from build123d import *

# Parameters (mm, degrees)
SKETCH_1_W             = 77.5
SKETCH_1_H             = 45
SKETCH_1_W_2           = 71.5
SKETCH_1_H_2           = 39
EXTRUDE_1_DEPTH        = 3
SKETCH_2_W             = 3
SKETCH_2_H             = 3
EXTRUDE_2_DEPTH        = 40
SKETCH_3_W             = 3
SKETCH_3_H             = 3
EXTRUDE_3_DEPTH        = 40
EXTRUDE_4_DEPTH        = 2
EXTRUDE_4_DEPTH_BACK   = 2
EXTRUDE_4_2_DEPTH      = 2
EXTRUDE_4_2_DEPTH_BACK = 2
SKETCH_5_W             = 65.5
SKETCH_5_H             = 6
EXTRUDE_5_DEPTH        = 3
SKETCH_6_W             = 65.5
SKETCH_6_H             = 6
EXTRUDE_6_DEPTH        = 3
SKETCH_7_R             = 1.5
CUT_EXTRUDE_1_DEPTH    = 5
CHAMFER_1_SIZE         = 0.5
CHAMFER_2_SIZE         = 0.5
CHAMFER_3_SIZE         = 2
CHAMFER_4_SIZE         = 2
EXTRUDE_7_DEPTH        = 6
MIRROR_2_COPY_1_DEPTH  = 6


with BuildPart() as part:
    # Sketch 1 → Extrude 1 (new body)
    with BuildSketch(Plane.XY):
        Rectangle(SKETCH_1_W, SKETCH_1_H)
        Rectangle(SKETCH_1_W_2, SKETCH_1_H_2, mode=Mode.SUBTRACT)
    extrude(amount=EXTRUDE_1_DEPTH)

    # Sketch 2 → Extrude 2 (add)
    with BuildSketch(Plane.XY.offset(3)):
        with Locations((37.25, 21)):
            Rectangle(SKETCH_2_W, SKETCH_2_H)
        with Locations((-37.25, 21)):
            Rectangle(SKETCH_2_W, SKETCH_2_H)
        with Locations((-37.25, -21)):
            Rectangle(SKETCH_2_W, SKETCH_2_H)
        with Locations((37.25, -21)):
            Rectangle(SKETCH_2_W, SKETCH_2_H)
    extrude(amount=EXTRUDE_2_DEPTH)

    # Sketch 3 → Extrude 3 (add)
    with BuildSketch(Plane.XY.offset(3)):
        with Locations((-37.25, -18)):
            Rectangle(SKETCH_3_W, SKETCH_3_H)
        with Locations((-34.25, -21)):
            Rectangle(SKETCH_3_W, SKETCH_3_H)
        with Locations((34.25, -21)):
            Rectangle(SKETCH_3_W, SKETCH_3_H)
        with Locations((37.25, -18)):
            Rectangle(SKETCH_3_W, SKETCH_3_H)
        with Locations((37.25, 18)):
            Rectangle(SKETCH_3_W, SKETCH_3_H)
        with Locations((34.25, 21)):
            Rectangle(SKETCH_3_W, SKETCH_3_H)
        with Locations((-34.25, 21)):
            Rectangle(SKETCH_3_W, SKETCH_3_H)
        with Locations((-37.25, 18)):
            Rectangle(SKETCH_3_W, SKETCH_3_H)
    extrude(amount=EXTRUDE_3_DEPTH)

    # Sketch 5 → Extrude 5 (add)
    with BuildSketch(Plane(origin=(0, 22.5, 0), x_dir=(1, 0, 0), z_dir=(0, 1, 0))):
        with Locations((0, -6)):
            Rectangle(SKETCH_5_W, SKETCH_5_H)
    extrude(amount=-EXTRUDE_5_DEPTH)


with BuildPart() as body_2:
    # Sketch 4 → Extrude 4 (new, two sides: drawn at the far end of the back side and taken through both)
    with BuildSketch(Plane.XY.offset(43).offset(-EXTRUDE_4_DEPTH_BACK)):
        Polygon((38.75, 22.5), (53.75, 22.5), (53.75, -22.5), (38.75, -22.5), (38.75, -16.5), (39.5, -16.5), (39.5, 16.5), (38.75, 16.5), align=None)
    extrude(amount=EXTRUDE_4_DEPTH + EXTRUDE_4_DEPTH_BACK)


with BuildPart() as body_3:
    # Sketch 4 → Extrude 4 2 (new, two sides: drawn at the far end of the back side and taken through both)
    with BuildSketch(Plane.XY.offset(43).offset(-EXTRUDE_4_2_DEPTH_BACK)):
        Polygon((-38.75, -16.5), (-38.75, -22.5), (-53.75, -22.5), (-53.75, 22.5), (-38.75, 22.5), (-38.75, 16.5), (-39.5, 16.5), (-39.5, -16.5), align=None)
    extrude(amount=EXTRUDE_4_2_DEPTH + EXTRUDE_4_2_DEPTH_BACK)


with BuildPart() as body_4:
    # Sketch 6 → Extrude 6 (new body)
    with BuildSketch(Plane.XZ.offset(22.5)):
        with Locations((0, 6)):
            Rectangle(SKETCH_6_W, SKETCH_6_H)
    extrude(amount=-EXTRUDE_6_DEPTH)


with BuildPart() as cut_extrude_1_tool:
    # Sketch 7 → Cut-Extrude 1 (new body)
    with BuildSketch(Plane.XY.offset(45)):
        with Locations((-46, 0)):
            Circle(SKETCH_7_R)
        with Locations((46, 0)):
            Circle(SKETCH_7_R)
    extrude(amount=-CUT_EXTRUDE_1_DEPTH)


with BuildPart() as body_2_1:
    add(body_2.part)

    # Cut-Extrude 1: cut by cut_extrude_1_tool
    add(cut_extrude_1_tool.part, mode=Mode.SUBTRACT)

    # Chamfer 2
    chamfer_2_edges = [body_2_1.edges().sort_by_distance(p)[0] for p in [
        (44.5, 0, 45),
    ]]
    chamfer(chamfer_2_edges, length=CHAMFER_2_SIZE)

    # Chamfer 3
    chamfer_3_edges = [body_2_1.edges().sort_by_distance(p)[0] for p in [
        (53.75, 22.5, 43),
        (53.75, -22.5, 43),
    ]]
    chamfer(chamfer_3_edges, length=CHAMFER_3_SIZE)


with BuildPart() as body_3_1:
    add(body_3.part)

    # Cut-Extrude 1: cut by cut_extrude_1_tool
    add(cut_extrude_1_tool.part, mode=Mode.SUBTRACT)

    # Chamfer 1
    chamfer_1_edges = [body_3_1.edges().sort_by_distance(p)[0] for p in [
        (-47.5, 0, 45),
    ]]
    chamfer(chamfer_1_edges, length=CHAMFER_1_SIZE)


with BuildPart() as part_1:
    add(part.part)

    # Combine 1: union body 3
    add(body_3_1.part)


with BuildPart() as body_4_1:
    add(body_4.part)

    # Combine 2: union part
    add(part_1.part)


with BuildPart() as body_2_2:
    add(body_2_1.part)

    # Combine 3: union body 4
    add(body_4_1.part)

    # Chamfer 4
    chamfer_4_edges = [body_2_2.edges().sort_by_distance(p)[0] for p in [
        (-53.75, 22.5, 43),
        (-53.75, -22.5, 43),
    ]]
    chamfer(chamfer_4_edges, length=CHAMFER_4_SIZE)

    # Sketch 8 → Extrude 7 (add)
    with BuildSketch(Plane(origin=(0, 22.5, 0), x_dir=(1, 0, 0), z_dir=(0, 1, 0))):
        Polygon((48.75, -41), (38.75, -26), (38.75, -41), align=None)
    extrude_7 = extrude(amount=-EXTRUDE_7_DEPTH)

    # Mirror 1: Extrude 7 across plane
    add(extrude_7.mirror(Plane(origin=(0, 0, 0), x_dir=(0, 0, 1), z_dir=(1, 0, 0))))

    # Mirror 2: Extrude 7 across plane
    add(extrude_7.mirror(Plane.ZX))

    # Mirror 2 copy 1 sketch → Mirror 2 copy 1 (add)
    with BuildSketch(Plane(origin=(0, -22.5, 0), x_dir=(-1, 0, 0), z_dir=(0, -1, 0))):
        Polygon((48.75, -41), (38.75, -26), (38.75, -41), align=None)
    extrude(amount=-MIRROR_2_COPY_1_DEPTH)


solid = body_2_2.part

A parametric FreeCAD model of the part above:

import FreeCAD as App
import Part
import Sketcher
from FreeCAD import Vector
Q = App.Units.Quantity


def edges_at(feature, points):
    """Names of the edges that pass closest to the given points."""
    edges = feature.Shape.Edges
    near = lambda p: min(range(len(edges)), key=lambda i: edges[i].distToShape(Part.Vertex(*p))[0])
    return sorted({f"Edge{near(p) + 1}" for p in points})


def add_polygon(sketch, points):
    """Adds a closed chain of lines whose ends are joined by coincident constraints."""
    first, n = sketch.GeometryCount, len(points)
    for a, b in zip(points, points[1:] + points[:1]):
        sketch.addGeometry(Part.LineSegment(App.Vector(*a, 0), App.Vector(*b, 0)), False)
    for i in range(n):
        sketch.addConstraint(Sketcher.Constraint("Coincident", first + i, 2, first + (i + 1) % n, 1))

doc = App.newDocument("Part")
body = doc.addObject("PartDesign::Body", "Body")

sketch1 = doc.addObject("Sketcher::SketchObject", "Sketch")
body.addObject(sketch1)
sketch1.AttachmentSupport = (doc.XY_Plane, [""])
sketch1.MapMode = "FlatFace"
add_polygon(sketch1, [(-39, 22), (-39, -22), (39, -22), (39, 22)])
add_polygon(sketch1, [(36, -20), (-36, -20), (-36, 20), (36, 20)])
sketch1.addConstraint(Sketcher.Constraint("Vertical", 0))
sketch1.addConstraint(Sketcher.Constraint("Horizontal", 1))
sketch1.addConstraint(Sketcher.Constraint("Vertical", 2))
sketch1.addConstraint(Sketcher.Constraint("Horizontal", 3))
sketch1.addConstraint(Sketcher.Constraint("Horizontal", 4))
sketch1.addConstraint(Sketcher.Constraint("Vertical", 5))
sketch1.addConstraint(Sketcher.Constraint("Horizontal", 6))
sketch1.addConstraint(Sketcher.Constraint("Vertical", 7))
sketch1.addConstraint(Sketcher.Constraint("Symmetric", 0, 2, 2, 2, -1, 1))
sketch1.addConstraint(Sketcher.Constraint("Symmetric", 4, 2, 6, 2, -1, 1))
sketch1.addConstraint(Sketcher.Constraint("DistanceY", 0, 2, 0, 1, Q("45 mm")))
sketch1.addConstraint(Sketcher.Constraint("DistanceY", 5, 1, 5, 2, Q("39 mm")))
sketch1.addConstraint(Sketcher.Constraint("DistanceX", 1, 1, 1, 2, Q("77.5 mm")))
sketch1.addConstraint(Sketcher.Constraint("DistanceX", 4, 2, 4, 1, Q("71.5 mm")))
pad1 = doc.addObject("PartDesign::Pad", "Pad")
body.addObject(pad1)
pad1.Profile = sketch1
pad1.Length = 3

sketch2 = doc.addObject("Sketcher::SketchObject", "Sketch001")
body.addObject(sketch2)
sketch2.AttachmentSupport = (doc.XY_Plane, [""])
sketch2.MapMode = "FlatFace"
sketch2.AttachmentOffset = App.Placement(Vector(0, 0, 3), App.Rotation())
add_polygon(sketch2, [(35.8, 22.5), (35.8, 19.5), (38.8, 19.5), (38.8, 22.5)])
add_polygon(sketch2, [(-38.8, 22.5), (-38.8, 19.5), (-35.8, 19.5), (-35.8, 22.5)])
add_polygon(sketch2, [(-38.8, -19.5), (-38.8, -22.5), (-35.8, -22.5), (-35.8, -19.5)])
add_polygon(sketch2, [(35.8, -19.5), (35.8, -22.5), (38.8, -22.5), (38.8, -19.5)])
sketch2.addConstraint(Sketcher.Constraint("Vertical", 0))
sketch2.addConstraint(Sketcher.Constraint("Horizontal", 1))
sketch2.addConstraint(Sketcher.Constraint("Vertical", 2))
sketch2.addConstraint(Sketcher.Constraint("Horizontal", 3))
sketch2.addConstraint(Sketcher.Constraint("Vertical", 4))
sketch2.addConstraint(Sketcher.Constraint("Horizontal", 5))
sketch2.addConstraint(Sketcher.Constraint("Vertical", 6))
sketch2.addConstraint(Sketcher.Constraint("Horizontal", 7))
sketch2.addConstraint(Sketcher.Constraint("Vertical", 8))
sketch2.addConstraint(Sketcher.Constraint("Horizontal", 9))
sketch2.addConstraint(Sketcher.Constraint("Vertical", 10))
sketch2.addConstraint(Sketcher.Constraint("Horizontal", 11))
sketch2.addConstraint(Sketcher.Constraint("Vertical", 12))
sketch2.addConstraint(Sketcher.Constraint("Horizontal", 13))
sketch2.addConstraint(Sketcher.Constraint("Vertical", 14))
sketch2.addConstraint(Sketcher.Constraint("Horizontal", 15))
sketch2.addConstraint(Sketcher.Constraint("Symmetric", 2, 2, 8, 2, -1, 1))
sketch2.addConstraint(Sketcher.Constraint("Symmetric", 0, 2, 10, 2, -1, 1))
sketch2.addConstraint(Sketcher.Constraint("Symmetric", 6, 2, 12, 2, -1, 1))
sketch2.addConstraint(Sketcher.Constraint("Symmetric", 4, 2, 14, 2, -1, 1))
sketch2.addConstraint(Sketcher.Constraint("Symmetric", 1, 2, 4, 2, -2))
sketch2.addConstraint(Sketcher.Constraint("Symmetric", 3, 2, 6, 2, -2))
sketch2.addConstraint(Sketcher.Constraint("Equal", 15, 0))
sketch2.addConstraint(Sketcher.Constraint("DistanceX", 1, 1, 1, 2, Q("3 mm")))
sketch2.addConstraint(Sketcher.Constraint("DistanceY", 8, 2, 4, 2, Q("42 mm")))
sketch2.addConstraint(Sketcher.Constraint("DistanceX", 4, 2, 0, 2, Q("74.5 mm")))
pad2 = doc.addObject("PartDesign::Pad", "Pad001")
body.addObject(pad2)
pad2.Profile = sketch2
pad2.Length = 40

sketch3 = doc.addObject("Sketcher::SketchObject", "Sketch002")
body.addObject(sketch3)
sketch3.AttachmentSupport = (doc.XY_Plane, [""])
sketch3.MapMode = "FlatFace"
sketch3.AttachmentOffset = App.Placement(Vector(0, 0, 3), App.Rotation())
add_polygon(sketch3, [(-38.8, -16.5), (-38.8, -19.5), (-35.8, -19.5), (-35.8, -16.5)])
add_polygon(sketch3, [(-35.8, -19.5), (-35.8, -22.5), (-32.8, -22.5), (-32.8, -19.5)])
add_polygon(sketch3, [(32.8, -19.5), (32.8, -22.5), (35.8, -22.5), (35.8, -19.5)])
add_polygon(sketch3, [(35.8, -16.5), (35.8, -19.5), (38.8, -19.5), (38.8, -16.5)])
add_polygon(sketch3, [(35.8, 19.5), (35.8, 16.5), (38.8, 16.5), (38.8, 19.5)])
add_polygon(sketch3, [(32.8, 22.5), (32.8, 19.5), (35.8, 19.5), (35.8, 22.5)])
add_polygon(sketch3, [(-35.8, 22.5), (-35.8, 19.5), (-32.8, 19.5), (-32.8, 22.5)])
add_polygon(sketch3, [(-38.8, 19.5), (-38.8, 16.5), (-35.8, 16.5), (-35.8, 19.5)])
sketch3.addConstraint(Sketcher.Constraint("Vertical", 0))
sketch3.addConstraint(Sketcher.Constraint("Horizontal", 1))
sketch3.addConstraint(Sketcher.Constraint("Vertical", 2))
sketch3.addConstraint(Sketcher.Constraint("Horizontal", 3))
sketch3.addConstraint(Sketcher.Constraint("Vertical", 4))
sketch3.addConstraint(Sketcher.Constraint("Horizontal", 5))
sketch3.addConstraint(Sketcher.Constraint("Vertical", 6))
sketch3.addConstraint(Sketcher.Constraint("Horizontal", 7))
sketch3.addConstraint(Sketcher.Constraint("Vertical", 8))
sketch3.addConstraint(Sketcher.Constraint("Horizontal", 9))
sketch3.addConstraint(Sketcher.Constraint("Vertical", 10))
sketch3.addConstraint(Sketcher.Constraint("Horizontal", 11))
sketch3.addConstraint(Sketcher.Constraint("Vertical", 12))
sketch3.addConstraint(Sketcher.Constraint("Horizontal", 13))
sketch3.addConstraint(Sketcher.Constraint("Vertical", 14))
sketch3.addConstraint(Sketcher.Constraint("Horizontal", 15))
sketch3.addConstraint(Sketcher.Constraint("Vertical", 16))
sketch3.addConstraint(Sketcher.Constraint("Horizontal", 17))
sketch3.addConstraint(Sketcher.Constraint("Vertical", 18))
sketch3.addConstraint(Sketcher.Constraint("Horizontal", 19))
sketch3.addConstraint(Sketcher.Constraint("Vertical", 20))
sketch3.addConstraint(Sketcher.Constraint("Horizontal", 21))
sketch3.addConstraint(Sketcher.Constraint("Vertical", 22))
sketch3.addConstraint(Sketcher.Constraint("Horizontal", 23))
sketch3.addConstraint(Sketcher.Constraint("Vertical", 24))
sketch3.addConstraint(Sketcher.Constraint("Horizontal", 25))
sketch3.addConstraint(Sketcher.Constraint("Vertical", 26))
sketch3.addConstraint(Sketcher.Constraint("Horizontal", 27))
sketch3.addConstraint(Sketcher.Constraint("Vertical", 28))
sketch3.addConstraint(Sketcher.Constraint("Horizontal", 29))
sketch3.addConstraint(Sketcher.Constraint("Vertical", 30))
sketch3.addConstraint(Sketcher.Constraint("Horizontal", 31))
sketch3.addConstraint(Sketcher.Constraint("Coincident", 7, 2, 1, 2))
sketch3.addConstraint(Sketcher.Constraint("Coincident", 12, 2, 10, 2))
sketch3.addConstraint(Sketcher.Constraint("Coincident", 21, 2, 19, 2))
sketch3.addConstraint(Sketcher.Constraint("Coincident", 30, 2, 24, 2))
sketch3.addConstraint(Sketcher.Constraint("Symmetric", 2, 2, 16, 2, -1, 1))
sketch3.addConstraint(Sketcher.Constraint("Symmetric", 0, 2, 18, 2, -1, 1))
sketch3.addConstraint(Sketcher.Constraint("Symmetric", 5, 2, 23, 2, -1, 1))
sketch3.addConstraint(Sketcher.Constraint("Symmetric", 10, 2, 24, 2, -1, 1))
sketch3.addConstraint(Sketcher.Constraint("Symmetric", 8, 2, 26, 2, -1, 1))
sketch3.addConstraint(Sketcher.Constraint("Symmetric", 14, 2, 28, 2, -1, 1))
sketch3.addConstraint(Sketcher.Constraint("Symmetric", 5, 2, 8, 2, -2))
sketch3.addConstraint(Sketcher.Constraint("Symmetric", 1, 2, 10, 2, -2))
sketch3.addConstraint(Sketcher.Constraint("Symmetric", 3, 2, 14, 2, -2))
sketch3.addConstraint(Sketcher.Constraint("Equal", 3, 5))
sketch3.addConstraint(Sketcher.Constraint("Equal", 31, 0))
sketch3.addConstraint(Sketcher.Constraint("Equal", 2, 4))
sketch3.addConstraint(Sketcher.Constraint("DistanceX", 1, 1, 1, 2, Q("3 mm")))
sketch3.addConstraint(Sketcher.Constraint("DistanceY", 15, 2, 16, 2, Q("33 mm")))
sketch3.addConstraint(Sketcher.Constraint("DistanceX", 5, 2, 8, 2, Q("65.5 mm")))
pad3 = doc.addObject("PartDesign::Pad", "Pad002")
body.addObject(pad3)
pad3.Profile = sketch3
pad3.Length = 40

sketch4 = doc.addObject("Sketcher::SketchObject", "Sketch003")
body.addObject(sketch4)
sketch4.AttachmentSupport = (doc.XZ_Plane, [""])
sketch4.MapMode = "FlatFace"
sketch4.AttachmentOffset = App.Placement(Vector(0, 0, -22.5), App.Rotation())
add_polygon(sketch4, [(-33, 3), (-33, 9), (33, 9), (33, 3)])
sketch4.addConstraint(Sketcher.Constraint("Vertical", 0))
sketch4.addConstraint(Sketcher.Constraint("Horizontal", 1))
sketch4.addConstraint(Sketcher.Constraint("Vertical", 2))
sketch4.addConstraint(Sketcher.Constraint("Horizontal", 3))
sketch4.addConstraint(Sketcher.Constraint("DistanceY", 0, 1, 0, 2, Q("6 mm")))
sketch4.addConstraint(Sketcher.Constraint("DistanceX", 1, 1, 1, 2, Q("65.5 mm")))
sketch4.addConstraint(Sketcher.Constraint("DistanceY", -1, 1, 0, 2, Q("9 mm")))
sketch4.addConstraint(Sketcher.Constraint("DistanceX", 0, 2, -1, 1, Q("32.75 mm")))
pad4 = doc.addObject("PartDesign::Pad", "Pad003")
body.addObject(pad4)
pad4.Profile = sketch4
pad4.Length = 3
body2 = doc.addObject("PartDesign::Body", "Body001")

sketch5 = doc.addObject("Sketcher::SketchObject", "Sketch004")
body2.addObject(sketch5)
sketch5.AttachmentSupport = (doc.getObject("XY_Plane001"), [""])
sketch5.MapMode = "FlatFace"
sketch5.AttachmentOffset = App.Placement(Vector(0, 0, 43), App.Rotation())
add_polygon(sketch5, [(53.8, 22.5), (38.8, 22.5), (38.8, 16.5), (39.5, 16.5), (39.5, -16.5), (38.8, -16.5), (38.8, -22.5), (53.8, -22.5)])
sketch5.addConstraint(Sketcher.Constraint("Horizontal", 0))
sketch5.addConstraint(Sketcher.Constraint("Vertical", 1))
sketch5.addConstraint(Sketcher.Constraint("Horizontal", 2))
sketch5.addConstraint(Sketcher.Constraint("Vertical", 3))
sketch5.addConstraint(Sketcher.Constraint("Horizontal", 4))
sketch5.addConstraint(Sketcher.Constraint("Vertical", 5))
sketch5.addConstraint(Sketcher.Constraint("Horizontal", 6))
sketch5.addConstraint(Sketcher.Constraint("Vertical", 7))
sketch5.addConstraint(Sketcher.Constraint("Symmetric", 1, 2, 4, 2, -1))
sketch5.addConstraint(Sketcher.Constraint("Equal", 1, 5))
sketch5.addConstraint(Sketcher.Constraint("DistanceX", 0, 2, 0, 1, Q("15 mm")))
sketch5.addConstraint(Sketcher.Constraint("DistanceY", 1, 2, 1, 1, Q("6 mm")))
sketch5.addConstraint(Sketcher.Constraint("DistanceY", 3, 2, 3, 1, Q("33 mm")))
sketch5.addConstraint(Sketcher.Constraint("DistanceX", 2, 1, 2, 2, Q("0.75 mm")))
sketch5.addConstraint(Sketcher.Constraint("DistanceX", -1, 1, 2, 2, Q("39.5 mm")))
pad5 = doc.addObject("PartDesign::Pad", "Pad004")
body2.addObject(pad5)
pad5.Profile = sketch5
pad5.Type = "TwoLengths"
pad5.Length = 2
pad5.Length2 = 2
body3 = doc.addObject("PartDesign::Body", "Body002")

sketch6 = doc.addObject("Sketcher::SketchObject", "Sketch005")
body3.addObject(sketch6)
sketch6.AttachmentSupport = (doc.getObject("XY_Plane002"), [""])
sketch6.MapMode = "FlatFace"
sketch6.AttachmentOffset = App.Placement(Vector(0, 0, 43), App.Rotation())
add_polygon(sketch6, [(-38.8, -22.5), (-38.8, -16.5), (-39.5, -16.5), (-39.5, 16.5), (-38.8, 16.5), (-38.8, 22.5), (-53.8, 22.5), (-53.8, -22.5)])
sketch6.addConstraint(Sketcher.Constraint("Vertical", 0))
sketch6.addConstraint(Sketcher.Constraint("Horizontal", 1))
sketch6.addConstraint(Sketcher.Constraint("Vertical", 2))
sketch6.addConstraint(Sketcher.Constraint("Horizontal", 3))
sketch6.addConstraint(Sketcher.Constraint("Vertical", 4))
sketch6.addConstraint(Sketcher.Constraint("Horizontal", 5))
sketch6.addConstraint(Sketcher.Constraint("Vertical", 6))
sketch6.addConstraint(Sketcher.Constraint("Horizontal", 7))
sketch6.addConstraint(Sketcher.Constraint("Symmetric", 0, 2, 3, 2, -1))
sketch6.addConstraint(Sketcher.Constraint("Equal", 0, 4))
sketch6.addConstraint(Sketcher.Constraint("DistanceX", 5, 2, 5, 1, Q("15 mm")))
sketch6.addConstraint(Sketcher.Constraint("DistanceY", 0, 1, 0, 2, Q("6 mm")))
sketch6.addConstraint(Sketcher.Constraint("DistanceY", 2, 1, 2, 2, Q("33 mm")))
sketch6.addConstraint(Sketcher.Constraint("DistanceX", 1, 2, 1, 1, Q("0.75 mm")))
sketch6.addConstraint(Sketcher.Constraint("DistanceX", 1, 2, -1, 1, Q("39.5 mm")))
pad6 = doc.addObject("PartDesign::Pad", "Pad005")
body3.addObject(pad6)
pad6.Profile = sketch6
pad6.Type = "TwoLengths"
pad6.Length = 2
pad6.Length2 = 2
body4 = doc.addObject("PartDesign::Body", "Body003")

sketch7 = doc.addObject("Sketcher::SketchObject", "Sketch006")
body4.addObject(sketch7)
sketch7.AttachmentSupport = (doc.getObject("XZ_Plane003"), [""])
sketch7.MapMode = "FlatFace"
sketch7.AttachmentOffset = App.Placement(Vector(0, 0, 22.5), App.Rotation())
add_polygon(sketch7, [(-33, 9), (-33, 3), (33, 3), (33, 9)])
sketch7.addConstraint(Sketcher.Constraint("Vertical", 0))
sketch7.addConstraint(Sketcher.Constraint("Horizontal", 1))
sketch7.addConstraint(Sketcher.Constraint("Vertical", 2))
sketch7.addConstraint(Sketcher.Constraint("Horizontal", 3))
sketch7.addConstraint(Sketcher.Constraint("DistanceY", 0, 2, 0, 1, Q("6 mm")))
sketch7.addConstraint(Sketcher.Constraint("DistanceX", 1, 1, 1, 2, Q("65.5 mm")))
sketch7.addConstraint(Sketcher.Constraint("DistanceY", -1, 1, 0, 2, Q("3 mm")))
sketch7.addConstraint(Sketcher.Constraint("DistanceX", 0, 2, -1, 1, Q("32.75 mm")))
pad7 = doc.addObject("PartDesign::Pad", "Pad006")
body4.addObject(pad7)
pad7.Profile = sketch7
pad7.Length = 3
pad7.Reversed = True
body5 = doc.addObject("PartDesign::Body", "Body004")
body5.AllowCompound = True

sketch8 = doc.addObject("Sketcher::SketchObject", "Sketch007")
body5.addObject(sketch8)
sketch8.AttachmentSupport = (doc.getObject("XY_Plane004"), [""])
sketch8.MapMode = "FlatFace"
sketch8.AttachmentOffset = App.Placement(Vector(0, 0, 45), App.Rotation())
sketch8.addGeometry(Part.Circle(Vector(-46, 0, 0), Vector(0, 0, 1), 1.5), False)
sketch8.addGeometry(Part.Circle(Vector(46, 0, 0), Vector(0, 0, 1), 1.5), False)
sketch8.addConstraint(Sketcher.Constraint("Equal", 0, 1))
sketch8.addConstraint(Sketcher.Constraint("Symmetric", 0, 3, 1, 3, -1, 1))
sketch8.addConstraint(Sketcher.Constraint("PointOnObject", 0, 3, -1))
sketch8.addConstraint(Sketcher.Constraint("Diameter", 0, Q("3 mm")))
sketch8.addConstraint(Sketcher.Constraint("DistanceX", 0, 3, -1, 1, Q("46 mm")))
pad8 = doc.addObject("PartDesign::Pad", "Pad007")
body5.addObject(pad8)
pad8.Profile = sketch8
pad8.Length = 5
pad8.Reversed = True
doc.recompute()

body6 = doc.addObject("PartDesign::Body", "Body005")
body6.BaseFeature = body5
boolean = doc.addObject("PartDesign::Boolean", "Boolean")
body2.addObject(boolean)
boolean.Type = "Cut"
boolean.addObjects([body6])
doc.recompute()

chamfer = doc.addObject("PartDesign::Chamfer", "Chamfer")
body2.addObject(chamfer)
chamfer.Base = (boolean, edges_at(boolean, [(44.5, 0, 45)]))
chamfer.Size = 0.5
doc.recompute()

chamfer2 = doc.addObject("PartDesign::Chamfer", "Chamfer001")
body2.addObject(chamfer2)
chamfer2.Base = (chamfer, edges_at(chamfer, [(53.75, 22.5, 43), (53.75, -22.5, 43)]))
chamfer2.Size = 2
doc.recompute()

boolean2 = doc.addObject("PartDesign::Boolean", "Boolean001")
body3.addObject(boolean2)
boolean2.Type = "Cut"
boolean2.addObjects([body5])
doc.recompute()

chamfer3 = doc.addObject("PartDesign::Chamfer", "Chamfer002")
body3.addObject(chamfer3)
chamfer3.Base = (boolean2, edges_at(boolean2, [(-47.5, 0, 45)]))
chamfer3.Size = 0.5
doc.recompute()

boolean3 = doc.addObject("PartDesign::Boolean", "Boolean002")
body.addObject(boolean3)
boolean3.Type = "Fuse"
boolean3.addObjects([body3])
doc.recompute()

boolean4 = doc.addObject("PartDesign::Boolean", "Boolean003")
body4.addObject(boolean4)
boolean4.Type = "Fuse"
boolean4.addObjects([body])
doc.recompute()

boolean5 = doc.addObject("PartDesign::Boolean", "Boolean004")
body2.addObject(boolean5)
boolean5.Type = "Fuse"
boolean5.addObjects([body4])
doc.recompute()

chamfer4 = doc.addObject("PartDesign::Chamfer", "Chamfer003")
body2.addObject(chamfer4)
chamfer4.Base = (boolean5, edges_at(boolean5, [(-53.75, 22.5, 43), (-53.75, -22.5, 43)]))
chamfer4.Size = 2

sketch9 = doc.addObject("Sketcher::SketchObject", "Sketch008")
body2.addObject(sketch9)
sketch9.AttachmentSupport = (doc.getObject("XZ_Plane001"), [""])
sketch9.MapMode = "FlatFace"
sketch9.AttachmentOffset = App.Placement(Vector(0, 0, -22.5), App.Rotation())
add_polygon(sketch9, [(49, 41), (39, 26), (39, 41)])
sketch9.addConstraint(Sketcher.Constraint("Vertical", 1))
sketch9.addConstraint(Sketcher.Constraint("Horizontal", 2))
sketch9.addConstraint(Sketcher.Constraint("DistanceX", 2, 1, 2, 2, Q("10 mm")))
sketch9.addConstraint(Sketcher.Constraint("DistanceY", 1, 1, 1, 2, Q("15 mm")))
sketch9.addConstraint(Sketcher.Constraint("DistanceY", -1, 1, 0, 2, Q("26 mm")))
sketch9.addConstraint(Sketcher.Constraint("DistanceX", -1, 1, 0, 2, Q("38.75 mm")))
pad9 = doc.addObject("PartDesign::Pad", "Pad008")
body2.addObject(pad9)
pad9.Profile = sketch9
pad9.Length = 6
doc.recompute()

mirrored = doc.addObject("PartDesign::Mirrored", "Mirrored")
body2.addObject(mirrored)
mirrored.Originals = [pad9]
mirrored.MirrorPlane = (doc.getObject("YZ_Plane001"), [""])
body2.Tip = mirrored
doc.recompute()

mirrored2 = doc.addObject("PartDesign::Mirrored", "Mirrored001")
body2.addObject(mirrored2)
mirrored2.Originals = [pad9]
mirrored2.MirrorPlane = (doc.getObject("XZ_Plane001"), [""])
body2.Tip = mirrored2

sketch10 = doc.addObject("Sketcher::SketchObject", "Sketch009")
body2.addObject(sketch10)
sketch10.AttachmentSupport = (doc.getObject("XZ_Plane001"), [""])
sketch10.MapMode = "FlatFace"
sketch10.AttachmentOffset = App.Placement(Vector(0, 0, 22.5), App.Rotation())
add_polygon(sketch10, [(-49, 41), (-39, 26), (-39, 41)])
sketch10.addConstraint(Sketcher.Constraint("Vertical", 1))
sketch10.addConstraint(Sketcher.Constraint("Horizontal", 2))
sketch10.addConstraint(Sketcher.Constraint("DistanceX", 2, 2, 2, 1, Q("10 mm")))
sketch10.addConstraint(Sketcher.Constraint("DistanceY", 1, 1, 1, 2, Q("15 mm")))
sketch10.addConstraint(Sketcher.Constraint("DistanceY", -1, 1, 0, 2, Q("26 mm")))
sketch10.addConstraint(Sketcher.Constraint("DistanceX", 0, 2, -1, 1, Q("38.75 mm")))
pad10 = doc.addObject("PartDesign::Pad", "Pad009")
body2.addObject(pad10)
pad10.Profile = sketch10
pad10.Length = 6
pad10.Reversed = True

doc.recompute()
